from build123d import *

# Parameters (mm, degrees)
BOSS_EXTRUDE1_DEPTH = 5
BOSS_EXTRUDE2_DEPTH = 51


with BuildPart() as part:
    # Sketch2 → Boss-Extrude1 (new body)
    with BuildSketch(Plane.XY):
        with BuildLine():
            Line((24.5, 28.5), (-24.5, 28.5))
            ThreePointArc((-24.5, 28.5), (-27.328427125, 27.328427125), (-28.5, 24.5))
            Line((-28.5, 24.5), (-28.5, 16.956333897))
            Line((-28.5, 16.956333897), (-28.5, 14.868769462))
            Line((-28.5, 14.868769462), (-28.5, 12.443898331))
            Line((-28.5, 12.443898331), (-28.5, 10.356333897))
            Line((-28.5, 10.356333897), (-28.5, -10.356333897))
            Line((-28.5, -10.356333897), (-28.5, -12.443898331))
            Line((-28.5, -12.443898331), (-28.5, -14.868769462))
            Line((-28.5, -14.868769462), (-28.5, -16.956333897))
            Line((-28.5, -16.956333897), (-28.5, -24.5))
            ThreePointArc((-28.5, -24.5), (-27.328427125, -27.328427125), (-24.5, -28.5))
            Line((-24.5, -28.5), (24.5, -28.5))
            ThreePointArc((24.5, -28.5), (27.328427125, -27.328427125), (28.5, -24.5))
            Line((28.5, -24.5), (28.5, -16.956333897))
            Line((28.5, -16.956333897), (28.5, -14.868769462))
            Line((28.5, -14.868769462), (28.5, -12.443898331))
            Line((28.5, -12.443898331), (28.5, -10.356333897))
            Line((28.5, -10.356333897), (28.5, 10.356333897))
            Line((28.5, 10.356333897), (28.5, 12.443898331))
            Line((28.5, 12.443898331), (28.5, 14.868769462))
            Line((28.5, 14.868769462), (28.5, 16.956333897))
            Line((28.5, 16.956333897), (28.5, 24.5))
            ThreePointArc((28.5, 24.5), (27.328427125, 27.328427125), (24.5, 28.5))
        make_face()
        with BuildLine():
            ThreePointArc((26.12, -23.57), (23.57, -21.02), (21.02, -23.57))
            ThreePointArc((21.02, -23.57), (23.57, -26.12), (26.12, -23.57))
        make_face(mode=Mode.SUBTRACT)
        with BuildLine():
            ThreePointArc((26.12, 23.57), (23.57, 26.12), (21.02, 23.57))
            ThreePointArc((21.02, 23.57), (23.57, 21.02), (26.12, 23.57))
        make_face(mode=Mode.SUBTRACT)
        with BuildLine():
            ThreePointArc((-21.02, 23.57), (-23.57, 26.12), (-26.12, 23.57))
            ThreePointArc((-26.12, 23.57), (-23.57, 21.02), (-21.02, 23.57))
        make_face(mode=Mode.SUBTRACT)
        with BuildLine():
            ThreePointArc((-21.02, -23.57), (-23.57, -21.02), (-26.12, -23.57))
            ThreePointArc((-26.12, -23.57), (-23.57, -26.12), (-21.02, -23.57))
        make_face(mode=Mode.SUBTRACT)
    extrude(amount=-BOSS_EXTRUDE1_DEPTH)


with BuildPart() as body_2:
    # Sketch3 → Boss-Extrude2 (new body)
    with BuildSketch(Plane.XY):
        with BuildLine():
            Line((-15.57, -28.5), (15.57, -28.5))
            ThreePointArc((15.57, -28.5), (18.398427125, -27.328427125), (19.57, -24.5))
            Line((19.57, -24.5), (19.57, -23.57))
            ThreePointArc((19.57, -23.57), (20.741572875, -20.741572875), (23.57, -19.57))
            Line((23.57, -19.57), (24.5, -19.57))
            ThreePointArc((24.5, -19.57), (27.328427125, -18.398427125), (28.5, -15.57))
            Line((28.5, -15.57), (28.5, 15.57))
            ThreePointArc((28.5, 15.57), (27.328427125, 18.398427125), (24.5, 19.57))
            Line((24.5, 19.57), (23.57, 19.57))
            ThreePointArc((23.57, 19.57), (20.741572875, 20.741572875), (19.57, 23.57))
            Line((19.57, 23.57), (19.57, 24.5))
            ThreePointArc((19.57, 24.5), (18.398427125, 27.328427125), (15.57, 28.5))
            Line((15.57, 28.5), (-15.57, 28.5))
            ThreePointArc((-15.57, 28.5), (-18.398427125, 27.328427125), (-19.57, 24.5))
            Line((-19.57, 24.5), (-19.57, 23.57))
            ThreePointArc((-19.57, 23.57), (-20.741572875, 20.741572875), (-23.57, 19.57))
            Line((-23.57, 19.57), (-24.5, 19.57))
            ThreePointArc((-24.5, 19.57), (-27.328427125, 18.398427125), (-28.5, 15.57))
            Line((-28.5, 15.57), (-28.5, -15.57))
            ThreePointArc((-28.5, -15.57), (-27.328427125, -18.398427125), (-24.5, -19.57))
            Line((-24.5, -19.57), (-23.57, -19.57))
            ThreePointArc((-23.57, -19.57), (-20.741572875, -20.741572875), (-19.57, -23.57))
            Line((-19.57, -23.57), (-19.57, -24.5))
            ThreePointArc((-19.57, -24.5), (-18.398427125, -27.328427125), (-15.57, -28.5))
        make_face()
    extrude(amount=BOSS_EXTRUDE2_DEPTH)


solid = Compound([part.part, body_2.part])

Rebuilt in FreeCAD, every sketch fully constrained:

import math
import FreeCAD as App
import Part
import Sketcher
from FreeCAD import Vector
Q = App.Units.Quantity

doc = App.newDocument("Part")
body = doc.addObject("PartDesign::Body", "Body")

# Sketch on XY plane
sketch1 = body.newObject("Sketcher::SketchObject", "Sketch")
sketch1.AttachmentSupport = (doc.getObject("XY_Plane"), [""])
sketch1.MapMode = "FlatFace"
sketch1.addGeometry([
    Part.LineSegment(Vector(24.5, 28.5, 0), Vector(-24.5, 28.5, 0)),  # 0
    Part.ArcOfCircle(Part.Circle(Vector(-24.5, 24.5, 0), Vector(0, 0, 1), 4), math.radians(90), math.radians(180)),  # 1
    Part.LineSegment(Vector(-28.5, 24.5, 0), Vector(-28.5, -24.5, 0)),  # 2
    Part.ArcOfCircle(Part.Circle(Vector(-24.5, -24.5, 0), Vector(0, 0, 1), 4), math.radians(180), math.radians(270)),  # 3
    Part.LineSegment(Vector(-24.5, -28.5, 0), Vector(24.5, -28.5, 0)),  # 4
    Part.ArcOfCircle(Part.Circle(Vector(24.5, -24.5, 0), Vector(0, 0, 1), 4), math.radians(-90), math.radians(0)),  # 5
    Part.LineSegment(Vector(28.5, -24.5, 0), Vector(28.5, 24.5, 0)),  # 6
    Part.ArcOfCircle(Part.Circle(Vector(24.5, 24.5, 0), Vector(0, 0, 1), 4), math.radians(0), math.radians(90)),  # 7
    Part.Circle(Vector(-23.6, -23.6, 0), Vector(0, 0, 1), 2.5),  # 8
    Part.Circle(Vector(23.6, -23.6, 0), Vector(0, 0, 1), 2.5),  # 9
    Part.Circle(Vector(-23.6, 23.6, 0), Vector(0, 0, 1), 2.5),  # 10
    Part.Circle(Vector(23.6, 23.6, 0), Vector(0, 0, 1), 2.5),  # 11
], False)
sketch1.addConstraint([
    Sketcher.Constraint("Tangent", 0, 2, 1, 1),
    Sketcher.Constraint("Tangent", 1, 2, 2, 1),
    Sketcher.Constraint("Tangent", 2, 2, 3, 1),
    Sketcher.Constraint("Tangent", 3, 2, 4, 1),
    Sketcher.Constraint("Tangent", 4, 2, 5, 1),
    Sketcher.Constraint("Tangent", 5, 2, 6, 1),
    Sketcher.Constraint("Tangent", 6, 2, 7, 1),
    Sketcher.Constraint("Tangent", 7, 2, 0, 1),
    Sketcher.Constraint("Horizontal", 0),
    Sketcher.Constraint("Vertical", 2),
    Sketcher.Constraint("Horizontal", 4),
    Sketcher.Constraint("Vertical", 6),
    Sketcher.Constraint("Equal", 1, 3),
    Sketcher.Constraint("Equal", 3, 5),
    Sketcher.Constraint("Equal", 5, 7),
    Sketcher.Constraint("Equal", 8, 9),
    Sketcher.Constraint("Equal", 9, 10),
    Sketcher.Constraint("Equal", 10, 11),
    Sketcher.Constraint("Symmetric", 1, 3, 5, 3, -1, 1),
    Sketcher.Constraint("Symmetric", 9, 3, 10, 3, -1, 1),
    Sketcher.Constraint("Symmetric", 8, 3, 11, 3, -1, 1),
    Sketcher.Constraint("Symmetric", 8, 3, 9, 3, -2),
    Sketcher.Constraint("Equal", 4, 2),
    Sketcher.Constraint("Radius", 1, Q("4 mm")),
    Sketcher.Constraint("Diameter", 8, Q("5.1 mm")),
    Sketcher.Constraint("DistanceX", 0, 2, 0, 1, Q("49 mm")),
    Sketcher.Constraint("DistanceX", 8, 3, -1, 1, Q("23.57 mm")),
    Sketcher.Constraint("DistanceY", 8, 3, -1, 1, Q("23.57 mm")),
])
pad1 = body.newObject("PartDesign::Pad", "Pad")
pad1.Profile = sketch1
pad1.Length = 5
pad1.Reversed = True
body2 = doc.addObject("PartDesign::Body", "Body001")

# Sketch on XY plane
sketch2 = body2.newObject("Sketcher::SketchObject", "Sketch001")
sketch2.AttachmentSupport = (doc.getObject("XY_Plane001"), [""])
sketch2.MapMode = "FlatFace"
sketch2.addGeometry([
    Part.LineSegment(Vector(-15.6, -28.5, 0), Vector(15.6, -28.5, 0)),  # 0
    Part.ArcOfCircle(Part.Circle(Vector(15.6, -24.5, 0), Vector(0, 0, 1), 4), math.radians(-90), math.radians(0)),  # 1
    Part.LineSegment(Vector(19.6, -24.5, 0), Vector(19.6, -23.6, 0)),  # 2
    Part.ArcOfCircle(Part.Circle(Vector(23.6, -23.6, 0), Vector(0, 0, 1), 4), math.radians(90), math.radians(180)),  # 3
    Part.LineSegment(Vector(23.6, -19.6, 0), Vector(24.5, -19.6, 0)),  # 4
    Part.ArcOfCircle(Part.Circle(Vector(24.5, -15.6, 0), Vector(0, 0, 1), 4), math.radians(-90), math.radians(0)),  # 5
    Part.LineSegment(Vector(28.5, -15.6, 0), Vector(28.5, 15.6, 0)),  # 6
    Part.ArcOfCircle(Part.Circle(Vector(24.5, 15.6, 0), Vector(0, 0, 1), 4), math.radians(0), math.radians(90)),  # 7
    Part.LineSegment(Vector(24.5, 19.6, 0), Vector(23.6, 19.6, 0)),  # 8
    Part.ArcOfCircle(Part.Circle(Vector(23.6, 23.6, 0), Vector(0, 0, 1), 4), math.radians(180), math.radians(270)),  # 9
    Part.LineSegment(Vector(19.6, 23.6, 0), Vector(19.6, 24.5, 0)),  # 10
    Part.ArcOfCircle(Part.Circle(Vector(15.6, 24.5, 0), Vector(0, 0, 1), 4), math.radians(0), math.radians(90)),  # 11
    Part.LineSegment(Vector(15.6, 28.5, 0), Vector(-15.6, 28.5, 0)),  # 12
    Part.ArcOfCircle(Part.Circle(Vector(-15.6, 24.5, 0), Vector(0, 0, 1), 4), math.radians(90), math.radians(180)),  # 13
    Part.LineSegment(Vector(-19.6, 24.5, 0), Vector(-19.6, 23.6, 0)),  # 14
    Part.ArcOfCircle(Part.Circle(Vector(-23.6, 23.6, 0), Vector(0, 0, 1), 4), math.radians(-90), math.radians(0)),  # 15
    Part.LineSegment(Vector(-23.6, 19.6, 0), Vector(-24.5, 19.6, 0)),  # 16
    Part.ArcOfCircle(Part.Circle(Vector(-24.5, 15.6, 0), Vector(0, 0, 1), 4), math.radians(90), math.radians(180)),  # 17
    Part.LineSegment(Vector(-28.5, 15.6, 0), Vector(-28.5, -15.6, 0)),  # 18
    Part.ArcOfCircle(Part.Circle(Vector(-24.5, -15.6, 0), Vector(0, 0, 1), 4), math.radians(180), math.radians(270)),  # 19
    Part.LineSegment(Vector(-24.5, -19.6, 0), Vector(-23.6, -19.6, 0)),  # 20
    Part.ArcOfCircle(Part.Circle(Vector(-23.6, -23.6, 0), Vector(0, 0, 1), 4), math.radians(0), math.radians(90)),  # 21
    Part.LineSegment(Vector(-19.6, -23.6, 0), Vector(-19.6, -24.5, 0)),  # 22
    Part.ArcOfCircle(Part.Circle(Vector(-15.6, -24.5, 0), Vector(0, 0, 1), 4), math.radians(180), math.radians(270)),  # 23
], False)
sketch2.addConstraint([
    Sketcher.Constraint("Tangent", 0, 2, 1, 1),
    Sketcher.Constraint("Tangent", 1, 2, 2, 1),
    Sketcher.Constraint("Tangent", 2, 2, 3, 2),
    Sketcher.Constraint("Tangent", 3, 1, 4, 1),
    Sketcher.Constraint("Tangent", 4, 2, 5, 1),
    Sketcher.Constraint("Tangent", 5, 2, 6, 1),
    Sketcher.Constraint("Tangent", 6, 2, 7, 1),
    Sketcher.Constraint("Tangent", 7, 2, 8, 1),
    Sketcher.Constraint("Tangent", 8, 2, 9, 2),
    Sketcher.Constraint("Tangent", 9, 1, 10, 1),
    Sketcher.Constraint("Tangent", 10, 2, 11, 1),
    Sketcher.Constraint("Tangent", 11, 2, 12, 1),
    Sketcher.Constraint("Tangent", 12, 2, 13, 1),
    Sketcher.Constraint("Tangent", 13, 2, 14, 1),
    Sketcher.Constraint("Tangent", 14, 2, 15, 2),
    Sketcher.Constraint("Tangent", 15, 1, 16, 1),
    Sketcher.Constraint("Tangent", 16, 2, 17, 1),
    Sketcher.Constraint("Tangent", 17, 2, 18, 1),
    Sketcher.Constraint("Tangent", 18, 2, 19, 1),
    Sketcher.Constraint("Tangent", 19, 2, 20, 1),
    Sketcher.Constraint("Tangent", 20, 2, 21, 2),
    Sketcher.Constraint("Tangent", 21, 1, 22, 1),
    Sketcher.Constraint("Tangent", 22, 2, 23, 1),
    Sketcher.Constraint("Tangent", 23, 2, 0, 1),
    Sketcher.Constraint("Horizontal", 0),
    Sketcher.Constraint("Vertical", 2),
    Sketcher.Constraint("Horizontal", 4),
    Sketcher.Constraint("Vertical", 6),
    Sketcher.Constraint("Horizontal", 8),
    Sketcher.Constraint("Vertical", 10),
    Sketcher.Constraint("Horizontal", 12),
    Sketcher.Constraint("Vertical", 14),
    Sketcher.Constraint("Horizontal", 16),
    Sketcher.Constraint("Vertical", 18),
    Sketcher.Constraint("Horizontal", 20),
    Sketcher.Constraint("Vertical", 22),
    Sketcher.Constraint("Equal", 1, 3),
    Sketcher.Constraint("Equal", 3, 5),
    Sketcher.Constraint("Equal", 5, 7),
    Sketcher.Constraint("Equal", 7, 9),
    Sketcher.Constraint("Equal", 9, 11),
    Sketcher.Constraint("Equal", 11, 13),
    Sketcher.Constraint("Equal", 13, 15),
    Sketcher.Constraint("Equal", 15, 17),
    Sketcher.Constraint("Equal", 17, 19),
    Sketcher.Constraint("Equal", 19, 21),
    Sketcher.Constraint("Equal", 21, 23),
    Sketcher.Constraint("Symmetric", 1, 3, 13, 3, -1, 1),
    Sketcher.Constraint("Symmetric", 5, 3, 17, 3, -1, 1),
    Sketcher.Constraint("Symmetric", 9, 3, 21, 3, -1, 1),
    Sketcher.Constraint("Symmetric", 9, 3, 15, 3, -2),
    Sketcher.Constraint("Equal", 20, 2),
    Sketcher.Constraint("Equal", 12, 6),
    Sketcher.Constraint("Radius", 1, Q("4 mm")),
    Sketcher.Constraint("DistanceY", 1, 3, 11, 3, Q("49 mm")),
    Sketcher.Constraint("DistanceX", 0, 1, 0, 2, Q("31.14 mm")),
])
pad2 = body2.newObject("PartDesign::Pad", "Pad001")
pad2.Profile = sketch2
pad2.Length = 51

doc.recompute()
